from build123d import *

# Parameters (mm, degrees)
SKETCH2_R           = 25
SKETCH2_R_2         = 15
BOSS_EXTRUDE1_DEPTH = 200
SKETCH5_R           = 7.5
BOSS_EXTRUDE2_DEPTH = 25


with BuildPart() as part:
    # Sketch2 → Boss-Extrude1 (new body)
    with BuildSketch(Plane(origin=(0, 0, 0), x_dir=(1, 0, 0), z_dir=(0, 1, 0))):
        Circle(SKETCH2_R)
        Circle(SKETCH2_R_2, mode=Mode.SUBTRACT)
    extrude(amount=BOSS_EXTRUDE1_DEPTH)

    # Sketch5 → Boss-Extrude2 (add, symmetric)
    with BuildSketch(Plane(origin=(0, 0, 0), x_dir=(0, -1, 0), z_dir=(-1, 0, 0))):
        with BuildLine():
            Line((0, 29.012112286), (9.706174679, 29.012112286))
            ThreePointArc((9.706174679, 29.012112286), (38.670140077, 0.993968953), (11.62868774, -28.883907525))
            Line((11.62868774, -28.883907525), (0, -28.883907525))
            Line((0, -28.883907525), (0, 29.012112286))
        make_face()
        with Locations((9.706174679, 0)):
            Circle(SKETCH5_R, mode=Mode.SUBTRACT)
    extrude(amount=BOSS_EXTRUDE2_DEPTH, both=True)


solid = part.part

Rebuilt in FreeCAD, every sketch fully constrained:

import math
import FreeCAD as App
import Part
import Sketcher

doc = App.newDocument("Part")
body = doc.addObject("PartDesign::Body", "Body")

# Sketch on XZ plane
sketch1 = body.newObject("Sketcher::SketchObject", "Sketch")
sketch1.AttachmentSupport = (doc.getObject("XZ_Plane"), [""])
sketch1.MapMode = "FlatFace"
sketch1.addGeometry([
    Part.Circle(App.Vector(0, 0, 0), App.Vector(0, 0, 1), 25),
    Part.Circle(App.Vector(0, 0, 0), App.Vector(0, 0, 1), 15),
], False)
sketch1.addConstraint([
    Sketcher.Constraint("Coincident", 0, 3, -1, 1),
    Sketcher.Constraint("Coincident", 1, 3, -1, 1),
    Sketcher.Constraint("Diameter", 0, 50.0),
    Sketcher.Constraint("Diameter", 1, 30.0),
])
pad1 = body.newObject("PartDesign::Pad", "Pad")
pad1.Profile = sketch1
pad1.Length = 200
pad1.Reversed = True

# Sketch on YZ plane
sketch2 = body.newObject("Sketcher::SketchObject", "Sketch001")
sketch2.AttachmentSupport = (doc.getObject("YZ_Plane"), [""])
sketch2.MapMode = "FlatFace"
sketch2.addGeometry([
    Part.LineSegment(App.Vector(-10, 29, 0), App.Vector(0, 29, 0)),  # 0
    Part.LineSegment(App.Vector(0, 29, 0), App.Vector(0, -29, 0)),  # 1
    Part.LineSegment(App.Vector(0, -29, 0), App.Vector(-12, -29, 0)),  # 2
    Part.ArcOfCircle(Part.Circle(App.Vector(-10, 0, 0), App.Vector(0, 0, 1), 29), math.radians(90), math.radians(266)),  # 3
    Part.Circle(App.Vector(-10, 0, 0), App.Vector(0, 0, 1), 8),  # 4
], False)
sketch2.addConstraint([
    Sketcher.Constraint("Coincident", 0, 2, 1, 1),
    Sketcher.Constraint("Coincident", 1, 2, 2, 1),
    Sketcher.Constraint("Coincident", 2, 2, 3, 2),
    Sketcher.Constraint("Tangent", 3, 1, 0, 1),
    Sketcher.Constraint("Horizontal", 0),
    Sketcher.Constraint("Vertical", 1),
    Sketcher.Constraint("Horizontal", 2),
    Sketcher.Constraint("PointOnObject", 4, 3, -1),
    Sketcher.Constraint("PointOnObject", 0, 2, -2),
    Sketcher.Constraint("Vertical", 3, 3, 4, 3),
    Sketcher.Constraint("Diameter", 4, 15.0),
    Sketcher.Constraint("Radius", 3, 28.97993),
    Sketcher.Constraint("DistanceY", 1, 2, 1, 1, 57.89602),
    Sketcher.Constraint("DistanceX", 0, 1, 0, 2, 9.706175),
    Sketcher.Constraint("DistanceY", -1, 1, 3, 3, 0.032183),
])
pad2 = body.newObject("PartDesign::Pad", "Pad001")
pad2.Profile = sketch2
pad2.Length = 50
pad2.Midplane = True

doc.recompute()
